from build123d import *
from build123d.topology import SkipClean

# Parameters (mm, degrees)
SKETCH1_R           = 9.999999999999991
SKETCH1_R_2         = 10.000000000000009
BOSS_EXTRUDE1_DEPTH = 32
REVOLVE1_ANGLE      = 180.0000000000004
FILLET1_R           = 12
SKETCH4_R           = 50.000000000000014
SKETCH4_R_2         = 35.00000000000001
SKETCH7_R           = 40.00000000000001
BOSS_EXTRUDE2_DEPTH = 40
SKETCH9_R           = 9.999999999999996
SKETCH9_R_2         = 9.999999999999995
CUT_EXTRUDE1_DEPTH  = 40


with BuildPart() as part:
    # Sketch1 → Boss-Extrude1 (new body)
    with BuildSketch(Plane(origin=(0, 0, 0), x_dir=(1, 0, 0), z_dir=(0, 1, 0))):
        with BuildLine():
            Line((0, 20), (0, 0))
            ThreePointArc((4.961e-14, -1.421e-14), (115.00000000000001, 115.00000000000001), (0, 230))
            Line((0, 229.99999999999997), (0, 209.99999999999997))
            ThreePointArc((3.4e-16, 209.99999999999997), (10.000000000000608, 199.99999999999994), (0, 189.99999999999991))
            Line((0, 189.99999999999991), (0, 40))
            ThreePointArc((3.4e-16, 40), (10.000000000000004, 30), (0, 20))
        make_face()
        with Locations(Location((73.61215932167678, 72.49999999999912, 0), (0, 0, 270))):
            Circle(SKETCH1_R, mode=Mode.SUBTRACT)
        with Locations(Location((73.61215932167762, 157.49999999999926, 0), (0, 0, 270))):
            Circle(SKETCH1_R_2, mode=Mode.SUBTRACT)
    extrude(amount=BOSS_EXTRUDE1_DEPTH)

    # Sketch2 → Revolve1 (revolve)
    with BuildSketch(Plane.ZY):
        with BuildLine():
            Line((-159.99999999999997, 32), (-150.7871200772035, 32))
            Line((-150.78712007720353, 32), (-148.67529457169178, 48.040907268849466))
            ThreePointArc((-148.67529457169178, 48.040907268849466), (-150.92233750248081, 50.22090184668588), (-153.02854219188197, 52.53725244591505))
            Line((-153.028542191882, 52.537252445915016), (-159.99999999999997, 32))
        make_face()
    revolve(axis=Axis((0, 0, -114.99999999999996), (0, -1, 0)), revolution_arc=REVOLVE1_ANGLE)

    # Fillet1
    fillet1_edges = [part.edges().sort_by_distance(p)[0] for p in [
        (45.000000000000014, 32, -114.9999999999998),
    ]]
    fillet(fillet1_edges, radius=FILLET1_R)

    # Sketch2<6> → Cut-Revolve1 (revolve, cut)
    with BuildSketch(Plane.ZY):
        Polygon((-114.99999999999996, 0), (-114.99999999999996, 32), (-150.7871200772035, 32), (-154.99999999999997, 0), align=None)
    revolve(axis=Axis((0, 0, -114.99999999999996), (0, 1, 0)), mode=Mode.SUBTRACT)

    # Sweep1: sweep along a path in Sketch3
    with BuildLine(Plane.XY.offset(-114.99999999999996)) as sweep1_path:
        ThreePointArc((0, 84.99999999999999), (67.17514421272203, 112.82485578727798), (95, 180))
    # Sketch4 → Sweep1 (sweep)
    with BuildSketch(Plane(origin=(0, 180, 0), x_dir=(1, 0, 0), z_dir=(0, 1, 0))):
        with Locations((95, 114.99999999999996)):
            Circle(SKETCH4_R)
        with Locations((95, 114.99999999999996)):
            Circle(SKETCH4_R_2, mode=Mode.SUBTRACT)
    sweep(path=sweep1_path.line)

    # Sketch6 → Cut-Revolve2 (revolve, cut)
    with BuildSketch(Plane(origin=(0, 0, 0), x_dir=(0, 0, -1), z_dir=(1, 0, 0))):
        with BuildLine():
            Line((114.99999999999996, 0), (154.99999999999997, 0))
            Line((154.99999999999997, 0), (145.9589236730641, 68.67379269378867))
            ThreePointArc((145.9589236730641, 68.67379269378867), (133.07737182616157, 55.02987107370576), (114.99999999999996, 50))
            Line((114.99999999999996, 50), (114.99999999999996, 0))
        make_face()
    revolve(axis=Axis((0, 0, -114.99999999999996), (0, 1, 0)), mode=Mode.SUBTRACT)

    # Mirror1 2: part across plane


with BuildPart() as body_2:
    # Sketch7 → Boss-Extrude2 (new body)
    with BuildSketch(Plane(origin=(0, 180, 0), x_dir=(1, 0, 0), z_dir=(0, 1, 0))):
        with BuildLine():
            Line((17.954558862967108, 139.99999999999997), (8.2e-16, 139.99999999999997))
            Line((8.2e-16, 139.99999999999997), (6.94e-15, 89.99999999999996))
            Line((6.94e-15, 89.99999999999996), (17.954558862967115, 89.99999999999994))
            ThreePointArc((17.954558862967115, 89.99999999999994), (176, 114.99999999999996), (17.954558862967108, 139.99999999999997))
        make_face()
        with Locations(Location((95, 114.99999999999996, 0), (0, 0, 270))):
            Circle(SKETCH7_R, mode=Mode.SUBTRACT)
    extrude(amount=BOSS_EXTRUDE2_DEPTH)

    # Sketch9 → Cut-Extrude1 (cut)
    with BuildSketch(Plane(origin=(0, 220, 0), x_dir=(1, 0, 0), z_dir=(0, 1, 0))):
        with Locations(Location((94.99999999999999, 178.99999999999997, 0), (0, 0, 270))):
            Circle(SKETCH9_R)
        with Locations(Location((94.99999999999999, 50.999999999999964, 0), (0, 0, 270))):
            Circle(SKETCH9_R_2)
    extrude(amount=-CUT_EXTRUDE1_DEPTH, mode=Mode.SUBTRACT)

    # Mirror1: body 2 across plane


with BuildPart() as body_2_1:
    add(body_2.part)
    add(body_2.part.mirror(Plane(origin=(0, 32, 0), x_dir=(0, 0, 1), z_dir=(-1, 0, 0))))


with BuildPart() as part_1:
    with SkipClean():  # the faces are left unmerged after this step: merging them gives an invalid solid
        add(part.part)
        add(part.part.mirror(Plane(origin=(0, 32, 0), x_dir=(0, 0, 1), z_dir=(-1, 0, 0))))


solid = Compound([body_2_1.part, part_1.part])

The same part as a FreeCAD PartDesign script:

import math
import FreeCAD as App
import Part
import Sketcher
Q = App.Units.Quantity


def edges_at(feature, points):
    """Names of the edges that pass closest to the given points."""
    edges = feature.Shape.Edges
    near = lambda p: min(range(len(edges)), key=lambda i: edges[i].distToShape(Part.Vertex(*p))[0])
    return sorted({f"Edge{near(p) + 1}" for p in points})


def add_polygon(sketch, points):
    """Adds a closed chain of lines whose ends are joined by coincident constraints."""
    first, n = sketch.GeometryCount, len(points)
    for a, b in zip(points, points[1:] + points[:1]):
        sketch.addGeometry(Part.LineSegment(App.Vector(*a, 0), App.Vector(*b, 0)), False)
    for i in range(n):
        sketch.addConstraint(Sketcher.Constraint("Coincident", first + i, 2, first + (i + 1) % n, 1))

doc = App.newDocument("Part")
body = doc.addObject("PartDesign::Body", "Body")

# Sketch on XZ plane
sketch1 = body.newObject("Sketcher::SketchObject", "Sketch")
sketch1.AttachmentSupport = (doc.getObject("XZ_Plane"), [""])
sketch1.MapMode = "FlatFace"
sketch1.addGeometry([
    Part.LineSegment(App.Vector(0, -20, 0), App.Vector(0, 0, 0)),  # 0
    Part.ArcOfCircle(Part.Circle(App.Vector(0, -115, 0), App.Vector(0, 0, 1), 115), math.radians(-90), math.radians(90)),  # 1
    Part.LineSegment(App.Vector(0, -230, 0), App.Vector(0, -210, 0)),  # 2
    Part.ArcOfCircle(Part.Circle(App.Vector(0, -200, 0), App.Vector(0, 0, 1), 10), math.radians(-90), math.radians(90)),  # 3
    Part.LineSegment(App.Vector(0, -190, 0), App.Vector(0, -40, 0)),  # 4
    Part.ArcOfCircle(Part.Circle(App.Vector(0, -30, 0), App.Vector(0, 0, 1), 10), math.radians(-90), math.radians(90)),  # 5
    Part.Circle(App.Vector(74, -72, 0), App.Vector(0, 0, 1), 10),  # 6
    Part.Circle(App.Vector(74, -158, 0), App.Vector(0, 0, 1), 10),  # 7
], False)
sketch1.addConstraint([
    Sketcher.Constraint("Coincident", 0, 2, 1, 2),
    Sketcher.Constraint("Coincident", 1, 1, 2, 1),
    Sketcher.Constraint("Coincident", 2, 2, 3, 1),
    Sketcher.Constraint("Coincident", 3, 2, 4, 1),
    Sketcher.Constraint("Coincident", 4, 2, 5, 1),
    Sketcher.Constraint("Coincident", 5, 2, 0, 1),
    Sketcher.Constraint("Vertical", 0),
    Sketcher.Constraint("Vertical", 2),
    Sketcher.Constraint("Vertical", 4),
    Sketcher.Constraint("Coincident", 0, 2, -1, 1),
    Sketcher.Constraint("Equal", 3, 5),
    Sketcher.Constraint("Equal", 5, 6),
    Sketcher.Constraint("Equal", 6, 7),
    Sketcher.Constraint("PointOnObject", 1, 3, -2),
    Sketcher.Constraint("PointOnObject", 3, 3, -2),
    Sketcher.Constraint("PointOnObject", 5, 3, -2),
    Sketcher.Constraint("PointOnObject", 1, 1, -2),
    Sketcher.Constraint("PointOnObject", 3, 2, -2),
    Sketcher.Constraint("Vertical", 6, 3, 7, 3),
    Sketcher.Constraint("Equal", 0, 2),
    Sketcher.Constraint("Diameter", 6, Q("20 mm")),
    Sketcher.Constraint("Radius", 1, Q("115 mm")),
    Sketcher.Constraint("DistanceY", 0, 1, 0, 2, Q("20 mm")),
    Sketcher.Constraint("DistanceY", 7, 3, 6, 3, Q("85 mm")),
    Sketcher.Constraint("DistanceY", 6, 3, -1, 1, Q("72.5 mm")),
    Sketcher.Constraint("DistanceX", -1, 1, 6, 3, Q("73.612159 mm")),
])
pad1 = body.newObject("PartDesign::Pad", "Pad")
pad1.Profile = sketch1
pad1.Length = 32
pad1.Reversed = True

# Sketch on YZ plane
sketch2 = body.newObject("Sketcher::SketchObject", "Sketch001")
sketch2.AttachmentSupport = (doc.getObject("YZ_Plane"), [""])
sketch2.MapMode = "FlatFace"
sketch2.addGeometry([
    Part.LineSegment(App.Vector(32, -160, 0), App.Vector(32, -151, 0)),
    Part.LineSegment(App.Vector(32, -151, 0), App.Vector(48, -149, 0)),
    Part.ArcOfCircle(Part.Circle(App.Vector(85, -115, 0), App.Vector(0, 0, 1), 50), math.radians(-137.66), math.radians(-130.49)),
    Part.LineSegment(App.Vector(53, -153, 0), App.Vector(32, -160, 0)),
], False)
sketch2.addGeometry(Part.LineSegment(App.Vector(85, -115, 0), App.Vector(32, -115, 0)), True)  # axis
sketch2.addConstraint([
    Sketcher.Constraint("Coincident", 0, 2, 1, 1),
    Sketcher.Constraint("Coincident", 1, 2, 2, 1),
    Sketcher.Constraint("Coincident", 2, 2, 3, 1),
    Sketcher.Constraint("Coincident", 3, 2, 0, 1),
    Sketcher.Constraint("Vertical", 0),
    Sketcher.Constraint("Horizontal", 4),
    Sketcher.Constraint("Coincident", 4, 1, 2, 3),
    Sketcher.Constraint("Vertical", 3, 2, 4, 2),
    Sketcher.Constraint("Radius", 2, Q("50 mm")),
    Sketcher.Constraint("DistanceX", 4, 2, 4, 1, Q("53 mm")),
    Sketcher.Constraint("DistanceX", -1, 1, 2, 3, Q("85 mm")),
    Sketcher.Constraint("DistanceY", 2, 3, -1, 1, Q("115 mm")),
    Sketcher.Constraint("DistanceY", 3, 2, -1, 1, Q("160 mm")),
    Sketcher.Constraint("Angle", 1, Q("7.5 deg")),
    Sketcher.Constraint("Angle", 3, Q("-161.25 deg")),
    Sketcher.Constraint("DistanceY", 0, 1, 0, 2, Q("9.21288 mm")),
])
revolution = body.newObject("PartDesign::Revolution", "Revolution")
revolution.Profile = sketch2
revolution.ReferenceAxis = (sketch2, ["Axis0"])
revolution.Angle = 180
doc.recompute()

fillet = body.newObject("PartDesign::Fillet", "Fillet")
fillet.Base = (revolution, edges_at(revolution, [(45, 32, -115)]))
fillet.Radius = 12

# Sketch on YZ plane
sketch3 = body.newObject("Sketcher::SketchObject", "Sketch002")
sketch3.AttachmentSupport = (doc.getObject("YZ_Plane"), [""])
sketch3.MapMode = "FlatFace"
add_polygon(sketch3, [(0, -115), (32, -115), (32, -151), (0, -155)])  # lines 0-3
sketch3.addGeometry(Part.LineSegment(App.Vector(0, -115, 0), App.Vector(32, -115, 0)), True)  # axis
sketch3.addConstraint([
    Sketcher.Constraint("Horizontal", 0),
    Sketcher.Constraint("Vertical", 1),
    Sketcher.Constraint("Vertical", 3),
    Sketcher.Constraint("Horizontal", 4),
    Sketcher.Constraint("Coincident", 4, 1, 3, 2),
    Sketcher.Constraint("PointOnObject", 2, 2, -2),
    Sketcher.Constraint("Vertical", 1, 2, 4, 2),
    Sketcher.Constraint("DistanceX", 0, 1, 0, 2, Q("32 mm")),
    Sketcher.Constraint("DistanceY", 3, 1, 3, 2, Q("40 mm")),
    Sketcher.Constraint("DistanceY", 0, 2, -1, 1, Q("115 mm")),
    Sketcher.Constraint("Angle", 2, Q("-172.5 deg")),
])
groove = body.newObject("PartDesign::Groove", "Groove")
groove.Profile = sketch3
groove.ReferenceAxis = (sketch3, ["Axis0"])
groove.Angle = 360

# Sketch on XZ plane
sketch4 = body.newObject("Sketcher::SketchObject", "Sketch003")
sketch4.AttachmentSupport = (doc.getObject("XZ_Plane"), [""])
sketch4.MapMode = "FlatFace"
sketch4.AttachmentOffset = App.Placement(App.Vector(0, 0, -180), App.Rotation())
sketch4.addGeometry([
    Part.Circle(App.Vector(95, -115, 0), App.Vector(0, 0, 1), 50),
    Part.Circle(App.Vector(95, -115, 0), App.Vector(0, 0, 1), 35),
], False)
sketch4.addConstraint([
    Sketcher.Constraint("Coincident", 1, 3, 0, 3),
    Sketcher.Constraint("Diameter", 0, Q("100 mm")),
    Sketcher.Constraint("Diameter", 1, Q("70 mm")),
    Sketcher.Constraint("DistanceX", -1, 1, 0, 3, Q("95 mm")),
    Sketcher.Constraint("DistanceY", 0, 3, -1, 1, Q("115 mm")),
])

# Sketch on XY plane
sketch5 = body.newObject("Sketcher::SketchObject", "Sketch004")
sketch5.AttachmentSupport = (doc.getObject("XY_Plane"), [""])
sketch5.MapMode = "FlatFace"
sketch5.AttachmentOffset = App.Placement(App.Vector(0, 0, -115), App.Rotation())
sketch5.addGeometry(Part.ArcOfCircle(Part.Circle(App.Vector(0, 180, 0), App.Vector(0, 0, 1), 95), math.radians(-90), math.radians(0)), False)
sketch5.addConstraint([
    Sketcher.Constraint("PointOnObject", 0, 3, -2),
    Sketcher.Constraint("PointOnObject", 0, 1, -2),
    Sketcher.Constraint("Radius", 0, Q("95 mm")),
    Sketcher.Constraint("DistanceY", -1, 1, 0, 3, Q("180 mm")),
    Sketcher.Constraint("DistanceY", -1, 1, 0, 2, Q("180 mm")),
])
doc.recompute()

additivepipe = body.newObject("PartDesign::AdditivePipe", "AdditivePipe")
additivepipe.Profile = sketch4
additivepipe.Spine = (sketch5, ["Edge1"])

# Sketch on YZ plane
sketch6 = body.newObject("Sketcher::SketchObject", "Sketch005")
sketch6.AttachmentSupport = (doc.getObject("YZ_Plane"), [""])
sketch6.MapMode = "FlatFace"
sketch6.addGeometry([
    Part.LineSegment(App.Vector(0, -115, 0), App.Vector(0, -155, 0)),
    Part.LineSegment(App.Vector(0, -155, 0), App.Vector(69, -146, 0)),
    Part.ArcOfCircle(Part.Circle(App.Vector(85, -115, 0), App.Vector(0, 0, 1), 35), math.radians(180), math.radians(242)),
    Part.LineSegment(App.Vector(50, -115, 0), App.Vector(0, -115, 0)),
], False)
sketch6.addGeometry(Part.LineSegment(App.Vector(0, -115, 0), App.Vector(85, -115, 0)), True)  # axis
sketch6.addConstraint([
    Sketcher.Constraint("Coincident", 0, 2, 1, 1),
    Sketcher.Constraint("Coincident", 1, 2, 2, 2),
    Sketcher.Constraint("Coincident", 2, 1, 3, 1),
    Sketcher.Constraint("Coincident", 3, 2, 0, 1),
    Sketcher.Constraint("Vertical", 0),
    Sketcher.Constraint("Horizontal", 3),
    Sketcher.Constraint("Horizontal", 4),
    Sketcher.Constraint("Coincident", 4, 1, 3, 2),
    Sketcher.Constraint("Coincident", 4, 2, 2, 3),
    Sketcher.Constraint("PointOnObject", 0, 2, -2),
    Sketcher.Constraint("Radius", 2, Q("35 mm")),
    Sketcher.Constraint("DistanceX", 3, 2, 3, 1, Q("50 mm")),
    Sketcher.Constraint("DistanceY", 0, 2, 0, 1, Q("40 mm")),
    Sketcher.Constraint("DistanceY", 2, 3, -1, 1, Q("115 mm")),
    Sketcher.Constraint("Angle", 1, Q("7.5 deg")),
])
groove2 = body.newObject("PartDesign::Groove", "Groove001")
groove2.Profile = sketch6
groove2.ReferenceAxis = (sketch6, ["Axis0"])
groove2.Angle = 360
body2 = doc.addObject("PartDesign::Body", "Body001")

# Sketch on XZ plane
sketch7 = body2.newObject("Sketcher::SketchObject", "Sketch006")
sketch7.AttachmentSupport = (doc.getObject("XZ_Plane001"), [""])
sketch7.MapMode = "FlatFace"
sketch7.AttachmentOffset = App.Placement(App.Vector(0, 0, -180), App.Rotation())
sketch7.addGeometry([
    Part.LineSegment(App.Vector(18, -140, 0), App.Vector(0, -140, 0)),  # 0
    Part.LineSegment(App.Vector(0, -140, 0), App.Vector(0, -90, 0)),  # 1
    Part.LineSegment(App.Vector(0, -90, 0), App.Vector(18, -90, 0)),  # 2
    Part.ArcOfCircle(Part.Circle(App.Vector(95, -115, 0), App.Vector(0, 0, 1), 81), math.radians(-162), math.radians(162)),  # 3
    Part.Circle(App.Vector(95, -115, 0), App.Vector(0, 0, 1), 40),  # 4
], False)
sketch7.addConstraint([
    Sketcher.Constraint("Coincident", 0, 2, 1, 1),
    Sketcher.Constraint("Coincident", 1, 2, 2, 1),
    Sketcher.Constraint("Coincident", 2, 2, 3, 2),
    Sketcher.Constraint("Coincident", 3, 1, 0, 1),
    Sketcher.Constraint("Horizontal", 0),
    Sketcher.Constraint("Vertical", 1),
    Sketcher.Constraint("Horizontal", 2),
    Sketcher.Constraint("Coincident", 4, 3, 3, 3),
    Sketcher.Constraint("PointOnObject", 0, 2, -2),
    Sketcher.Constraint("Vertical", 2, 2, 3, 1),
    Sketcher.Constraint("Diameter", 4, Q("80 mm")),
    Sketcher.Constraint("Radius", 3, Q("81 mm")),
    Sketcher.Constraint("DistanceY", 1, 1, 1, 2, Q("50 mm")),
    Sketcher.Constraint("DistanceX", -1, 1, 3, 3, Q("95 mm")),
    Sketcher.Constraint("DistanceY", 3, 3, -1, 1, Q("115 mm")),
])
pad2 = body2.newObject("PartDesign::Pad", "Pad001")
pad2.Profile = sketch7
pad2.Length = 40
pad2.Reversed = True

# Sketch on XZ plane
sketch8 = body2.newObject("Sketcher::SketchObject", "Sketch007")
sketch8.AttachmentSupport = (doc.getObject("XZ_Plane001"), [""])
sketch8.MapMode = "FlatFace"
sketch8.AttachmentOffset = App.Placement(App.Vector(0, 0, -220), App.Rotation())
sketch8.addGeometry([
    Part.Circle(App.Vector(95, -179, 0), App.Vector(0, 0, 1), 10),
    Part.Circle(App.Vector(95, -51, 0), App.Vector(0, 0, 1), 10),
], False)
sketch8.addConstraint([
    Sketcher.Constraint("Equal", 0, 1),
    Sketcher.Constraint("Vertical", 0, 3, 1, 3),
    Sketcher.Constraint("Diameter", 0, Q("20 mm")),
    Sketcher.Constraint("DistanceX", -1, 1, 0, 3, Q("95 mm")),
    Sketcher.Constraint("DistanceY", 0, 3, -1, 1, Q("179 mm")),
    Sketcher.Constraint("DistanceY", 1, 3, -1, 1, Q("51 mm")),
])
pocket1 = body2.newObject("PartDesign::Pocket", "Pocket")
pocket1.Profile = sketch8
pocket1.Length = 40
pocket1.Reversed = True
body3 = doc.addObject("PartDesign::Body", "Body002")
doc.recompute()

body3.BaseFeature = body2
doc.recompute()

mirroring = doc.addObject("Part::Mirroring", "Mirroring")
mirroring.Source = body2
mirroring.Base = App.Vector(0, 32, 0)
mirroring.Normal = App.Vector(-1, 0, 0)
body4 = doc.addObject("PartDesign::Body", "Body003")
body4.BaseFeature = mirroring
boolean = body3.newObject("PartDesign::Boolean", "Boolean")
boolean.Type = "Fuse"
boolean.addObjects([body4])
doc.recompute()
body5 = doc.addObject("PartDesign::Body", "Body004")
doc.recompute()

body5.BaseFeature = body
doc.recompute()

mirroring2 = doc.addObject("Part::Mirroring", "Mirroring001")
mirroring2.Source = body
mirroring2.Base = App.Vector(0, 32, 0)
mirroring2.Normal = App.Vector(-1, 0, 0)
body6 = doc.addObject("PartDesign::Body", "Body005")
body6.BaseFeature = mirroring2
boolean2 = body5.newObject("PartDesign::Boolean", "Boolean001")
boolean2.Type = "Fuse"
boolean2.addObjects([body6])
doc.recompute()
mirroring.Visibility = False
mirroring2.Visibility = False

doc.recompute()
